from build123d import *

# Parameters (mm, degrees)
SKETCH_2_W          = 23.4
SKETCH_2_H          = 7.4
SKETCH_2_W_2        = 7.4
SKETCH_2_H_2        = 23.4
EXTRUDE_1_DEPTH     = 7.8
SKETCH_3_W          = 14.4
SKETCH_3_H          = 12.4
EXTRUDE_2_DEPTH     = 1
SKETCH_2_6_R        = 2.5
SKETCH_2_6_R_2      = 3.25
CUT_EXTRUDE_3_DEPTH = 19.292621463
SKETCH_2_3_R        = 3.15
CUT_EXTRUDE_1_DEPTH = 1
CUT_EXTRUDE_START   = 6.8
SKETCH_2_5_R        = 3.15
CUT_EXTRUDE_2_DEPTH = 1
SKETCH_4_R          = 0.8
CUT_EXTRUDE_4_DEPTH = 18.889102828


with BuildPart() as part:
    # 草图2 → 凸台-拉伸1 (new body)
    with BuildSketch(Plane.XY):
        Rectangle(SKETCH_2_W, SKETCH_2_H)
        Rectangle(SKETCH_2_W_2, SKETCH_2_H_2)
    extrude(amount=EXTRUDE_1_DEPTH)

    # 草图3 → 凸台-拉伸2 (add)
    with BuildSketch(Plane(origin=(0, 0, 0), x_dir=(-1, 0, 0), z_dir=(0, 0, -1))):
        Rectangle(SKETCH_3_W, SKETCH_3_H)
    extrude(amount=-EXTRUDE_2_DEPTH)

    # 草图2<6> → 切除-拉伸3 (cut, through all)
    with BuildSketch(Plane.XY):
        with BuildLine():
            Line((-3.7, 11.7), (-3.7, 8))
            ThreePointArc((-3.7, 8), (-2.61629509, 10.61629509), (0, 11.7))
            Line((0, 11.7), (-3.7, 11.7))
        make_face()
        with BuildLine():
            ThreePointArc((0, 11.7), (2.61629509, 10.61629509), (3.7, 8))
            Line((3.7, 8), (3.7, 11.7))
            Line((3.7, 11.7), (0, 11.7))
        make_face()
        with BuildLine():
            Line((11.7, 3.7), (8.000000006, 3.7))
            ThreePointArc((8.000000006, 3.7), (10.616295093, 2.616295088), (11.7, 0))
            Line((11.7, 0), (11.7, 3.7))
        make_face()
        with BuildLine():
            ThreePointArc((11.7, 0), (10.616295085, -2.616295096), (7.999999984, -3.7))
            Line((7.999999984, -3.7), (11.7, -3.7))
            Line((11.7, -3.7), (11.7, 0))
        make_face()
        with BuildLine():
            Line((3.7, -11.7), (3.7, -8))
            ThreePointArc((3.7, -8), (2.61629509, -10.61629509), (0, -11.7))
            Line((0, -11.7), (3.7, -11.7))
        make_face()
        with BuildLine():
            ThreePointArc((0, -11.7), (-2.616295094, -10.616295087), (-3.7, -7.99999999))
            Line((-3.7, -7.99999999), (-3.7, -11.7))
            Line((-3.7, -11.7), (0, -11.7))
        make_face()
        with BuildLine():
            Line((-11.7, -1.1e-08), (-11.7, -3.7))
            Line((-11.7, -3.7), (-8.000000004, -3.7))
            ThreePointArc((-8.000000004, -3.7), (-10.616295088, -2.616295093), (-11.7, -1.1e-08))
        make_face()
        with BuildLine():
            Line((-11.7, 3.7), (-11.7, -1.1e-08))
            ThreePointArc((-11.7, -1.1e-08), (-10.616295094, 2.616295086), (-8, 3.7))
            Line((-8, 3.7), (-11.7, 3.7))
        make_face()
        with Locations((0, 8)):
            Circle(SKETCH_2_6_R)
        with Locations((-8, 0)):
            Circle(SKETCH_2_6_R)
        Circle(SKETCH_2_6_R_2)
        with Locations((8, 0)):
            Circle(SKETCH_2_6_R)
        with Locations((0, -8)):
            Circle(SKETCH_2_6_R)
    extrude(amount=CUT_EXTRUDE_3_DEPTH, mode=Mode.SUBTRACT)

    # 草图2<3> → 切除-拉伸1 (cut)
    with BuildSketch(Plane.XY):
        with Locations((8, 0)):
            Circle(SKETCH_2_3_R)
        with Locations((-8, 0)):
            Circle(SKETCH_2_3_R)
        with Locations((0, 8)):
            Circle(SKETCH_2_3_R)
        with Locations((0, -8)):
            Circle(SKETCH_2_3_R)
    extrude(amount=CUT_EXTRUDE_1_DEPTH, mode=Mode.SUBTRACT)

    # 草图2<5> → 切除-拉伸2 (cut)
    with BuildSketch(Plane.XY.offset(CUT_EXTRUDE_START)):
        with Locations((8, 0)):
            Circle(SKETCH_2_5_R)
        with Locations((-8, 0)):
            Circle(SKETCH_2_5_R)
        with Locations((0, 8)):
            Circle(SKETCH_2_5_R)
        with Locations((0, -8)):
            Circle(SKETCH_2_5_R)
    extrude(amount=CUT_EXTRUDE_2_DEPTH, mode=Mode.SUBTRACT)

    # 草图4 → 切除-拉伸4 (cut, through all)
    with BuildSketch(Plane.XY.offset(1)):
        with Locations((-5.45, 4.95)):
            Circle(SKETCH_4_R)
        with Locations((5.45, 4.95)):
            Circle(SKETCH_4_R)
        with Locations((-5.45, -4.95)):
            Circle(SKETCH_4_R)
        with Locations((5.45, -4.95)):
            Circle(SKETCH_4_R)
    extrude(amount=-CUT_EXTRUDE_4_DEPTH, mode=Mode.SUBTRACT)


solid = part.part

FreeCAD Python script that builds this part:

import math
import FreeCAD as App
import Part
import Sketcher
from FreeCAD import Vector


def add_polygon(sketch, points):
    """Adds a closed chain of lines whose ends are joined by coincident constraints."""
    first, n = sketch.GeometryCount, len(points)
    for a, b in zip(points, points[1:] + points[:1]):
        sketch.addGeometry(Part.LineSegment(App.Vector(*a, 0), App.Vector(*b, 0)), False)
    for i in range(n):
        sketch.addConstraint(Sketcher.Constraint("Coincident", first + i, 2, first + (i + 1) % n, 1))

doc = App.newDocument("Part")
body = doc.addObject("PartDesign::Body", "Body")

sketch1 = doc.addObject("Sketcher::SketchObject", "Sketch")
body.addObject(sketch1)
sketch1.AttachmentSupport = (doc.XY_Plane, [""])
sketch1.MapMode = "FlatFace"
add_polygon(sketch1, [(-12, 4), (-12, -4), (-4, -4), (-4, -12), (4, -12), (4, -4), (12, -4), (12, 4), (4, 4), (4, 12), (-4, 12), (-4, 4)])
sketch1.addConstraint(Sketcher.Constraint("Vertical", 0))
sketch1.addConstraint(Sketcher.Constraint("Horizontal", 1))
sketch1.addConstraint(Sketcher.Constraint("Vertical", 2))
sketch1.addConstraint(Sketcher.Constraint("Horizontal", 3))
sketch1.addConstraint(Sketcher.Constraint("Vertical", 4))
sketch1.addConstraint(Sketcher.Constraint("Horizontal", 5))
sketch1.addConstraint(Sketcher.Constraint("Vertical", 6))
sketch1.addConstraint(Sketcher.Constraint("Horizontal", 7))
sketch1.addConstraint(Sketcher.Constraint("Vertical", 8))
sketch1.addConstraint(Sketcher.Constraint("Horizontal", 9))
sketch1.addConstraint(Sketcher.Constraint("Vertical", 10))
sketch1.addConstraint(Sketcher.Constraint("Horizontal", 11))
sketch1.addConstraint(Sketcher.Constraint("Symmetric", 0, 2, 6, 2, -1, 1))
sketch1.addConstraint(Sketcher.Constraint("Symmetric", 2, 2, 8, 2, -1, 1))
sketch1.addConstraint(Sketcher.Constraint("Symmetric", 4, 2, 10, 2, -1, 1))
sketch1.addConstraint(Sketcher.Constraint("Symmetric", 1, 2, 4, 2, -2))
sketch1.addConstraint(Sketcher.Constraint("Equal", 9, 0))
sketch1.addConstraint(Sketcher.Constraint("Equal", 11, 2))
sketch1.addConstraint(Sketcher.Constraint("DistanceX", 1, 1, 1, 2, 8.0))
sketch1.addConstraint(Sketcher.Constraint("DistanceX", 3, 1, 3, 2, 7.4))
pad1 = doc.addObject("PartDesign::Pad", "Pad")
body.addObject(pad1)
pad1.Profile = sketch1
pad1.Length = 7.8

sketch2 = doc.addObject("Sketcher::SketchObject", "Sketch001")
body.addObject(sketch2)
sketch2.AttachmentSupport = (doc.XY_Plane, [""])
sketch2.MapMode = "FlatFace"
add_polygon(sketch2, [(7, 6), (7, -6), (-7, -6), (-7, 6)])
sketch2.addConstraint(Sketcher.Constraint("Vertical", 0))
sketch2.addConstraint(Sketcher.Constraint("Horizontal", 1))
sketch2.addConstraint(Sketcher.Constraint("Vertical", 2))
sketch2.addConstraint(Sketcher.Constraint("Horizontal", 3))
sketch2.addConstraint(Sketcher.Constraint("Symmetric", 0, 2, 2, 2, -1, 1))
sketch2.addConstraint(Sketcher.Constraint("DistanceX", 1, 2, 1, 1, 14.4))
sketch2.addConstraint(Sketcher.Constraint("DistanceY", 0, 2, 0, 1, 12.4))
pad2 = doc.addObject("PartDesign::Pad", "Pad001")
body.addObject(pad2)
pad2.Profile = sketch2
pad2.Length = 1

sketch3 = doc.addObject("Sketcher::SketchObject", "Sketch002")
body.addObject(sketch3)
sketch3.AttachmentSupport = (doc.XY_Plane, [""])
sketch3.MapMode = "FlatFace"
sketch3.addGeometry(Part.LineSegment(Vector(-3.7, 11.7, 0), Vector(-3.7, 8, 0)), False)
sketch3.addGeometry(Part.ArcOfCircle(Part.Circle(Vector(0, 8, 0), Vector(0, 0, 1), 3.7), math.radians(90), math.radians(180)), False)
sketch3.addGeometry(Part.LineSegment(Vector(0, 11.7, 0), Vector(-3.7, 11.7, 0)), False)
sketch3.addGeometry(Part.ArcOfCircle(Part.Circle(Vector(0, 8, 0), Vector(0, 0, 1), 3.7), math.radians(0), math.radians(90)), False)
sketch3.addGeometry(Part.LineSegment(Vector(3.7, 8, 0), Vector(3.7, 11.7, 0)), False)
sketch3.addGeometry(Part.LineSegment(Vector(3.7, 11.7, 0), Vector(0, 11.7, 0)), False)
sketch3.addGeometry(Part.LineSegment(Vector(11.7, 3.7, 0), Vector(8, 3.7, 0)), False)
sketch3.addGeometry(Part.ArcOfCircle(Part.Circle(Vector(8, 0, 0), Vector(0, 0, 1), 3.7), math.radians(0), math.radians(90)), False)
sketch3.addGeometry(Part.LineSegment(Vector(11.7, 0, 0), Vector(11.7, 3.7, 0)), False)
sketch3.addGeometry(Part.ArcOfCircle(Part.Circle(Vector(8, 0, 0), Vector(0, 0, 1), 3.7), math.radians(-90), math.radians(0)), False)
sketch3.addGeometry(Part.LineSegment(Vector(8, -3.7, 0), Vector(11.7, -3.7, 0)), False)
sketch3.addGeometry(Part.LineSegment(Vector(11.7, -3.7, 0), Vector(11.7, 0, 0)), False)
sketch3.addGeometry(Part.LineSegment(Vector(3.7, -11.7, 0), Vector(3.7, -8, 0)), False)
sketch3.addGeometry(Part.ArcOfCircle(Part.Circle(Vector(0, -8, 0), Vector(0, 0, 1), 3.7), math.radians(-90), math.radians(0)), False)
sketch3.addGeometry(Part.LineSegment(Vector(0, -11.7, 0), Vector(3.7, -11.7, 0)), False)
sketch3.addGeometry(Part.ArcOfCircle(Part.Circle(Vector(0, -8, 0), Vector(0, 0, 1), 3.7), math.radians(180), math.radians(270)), False)
sketch3.addGeometry(Part.LineSegment(Vector(-3.7, -8, 0), Vector(-3.7, -11.7, 0)), False)
sketch3.addGeometry(Part.LineSegment(Vector(-3.7, -11.7, 0), Vector(0, -11.7, 0)), False)
sketch3.addGeometry(Part.LineSegment(Vector(-11.7, 0, 0), Vector(-11.7, -3.7, 0)), False)
sketch3.addGeometry(Part.LineSegment(Vector(-11.7, -3.7, 0), Vector(-8, -3.7, 0)), False)
sketch3.addGeometry(Part.ArcOfCircle(Part.Circle(Vector(-8, 0, 0), Vector(0, 0, 1), 3.7), math.radians(-180), math.radians(-90)), False)
sketch3.addGeometry(Part.LineSegment(Vector(-11.7, 3.7, 0), Vector(-11.7, 0, 0)), False)
sketch3.addGeometry(Part.ArcOfCircle(Part.Circle(Vector(-8, 0, 0), Vector(0, 0, 1), 3.7), math.radians(90), math.radians(180)), False)
sketch3.addGeometry(Part.LineSegment(Vector(-8, 3.7, 0), Vector(-11.7, 3.7, 0)), False)
sketch3.addGeometry(Part.Circle(Vector(0, 8, 0), Vector(0, 0, 1), 2.5), False)
sketch3.addGeometry(Part.Circle(Vector(-8, 0, 0), Vector(0, 0, 1), 2.5), False)
sketch3.addGeometry(Part.Circle(Vector(0, 0, 0), Vector(0, 0, 1), 3.2), False)
sketch3.addGeometry(Part.Circle(Vector(8, 0, 0), Vector(0, 0, 1), 2.5), False)
sketch3.addGeometry(Part.Circle(Vector(0, -8, 0), Vector(0, 0, 1), 2.5), False)
sketch3.addConstraint(Sketcher.Constraint("Tangent", 0, 2, 1, 2))
sketch3.addConstraint(Sketcher.Constraint("Tangent", 1, 1, 2, 1))
sketch3.addConstraint(Sketcher.Constraint("Coincident", 2, 2, 0, 1))
sketch3.addConstraint(Sketcher.Constraint("Tangent", 3, 1, 4, 1))
sketch3.addConstraint(Sketcher.Constraint("Coincident", 4, 2, 5, 1))
sketch3.addConstraint(Sketcher.Constraint("Tangent", 5, 2, 3, 2))
sketch3.addConstraint(Sketcher.Constraint("Tangent", 6, 2, 7, 2))
sketch3.addConstraint(Sketcher.Constraint("Tangent", 7, 1, 8, 1))
sketch3.addConstraint(Sketcher.Constraint("Coincident", 8, 2, 6, 1))
sketch3.addConstraint(Sketcher.Constraint("Tangent", 9, 1, 10, 1))
sketch3.addConstraint(Sketcher.Constraint("Coincident", 10, 2, 11, 1))
sketch3.addConstraint(Sketcher.Constraint("Tangent", 11, 2, 9, 2))
sketch3.addConstraint(Sketcher.Constraint("Tangent", 12, 2, 13, 2))
sketch3.addConstraint(Sketcher.Constraint("Tangent", 13, 1, 14, 1))
sketch3.addConstraint(Sketcher.Constraint("Coincident", 14, 2, 12, 1))
sketch3.addConstraint(Sketcher.Constraint("Tangent", 15, 1, 16, 1))
sketch3.addConstraint(Sketcher.Constraint("Coincident", 16, 2, 17, 1))
sketch3.addConstraint(Sketcher.Constraint("Tangent", 17, 2, 15, 2))
sketch3.addConstraint(Sketcher.Constraint("Coincident", 18, 2, 19, 1))
sketch3.addConstraint(Sketcher.Constraint("Tangent", 19, 2, 20, 2))
sketch3.addConstraint(Sketcher.Constraint("Tangent", 20, 1, 18, 1))
sketch3.addConstraint(Sketcher.Constraint("Tangent", 21, 2, 22, 2))
sketch3.addConstraint(Sketcher.Constraint("Tangent", 22, 1, 23, 1))
sketch3.addConstraint(Sketcher.Constraint("Coincident", 23, 2, 21, 1))
sketch3.addConstraint(Sketcher.Constraint("Vertical", 0))
sketch3.addConstraint(Sketcher.Constraint("Horizontal", 2))
sketch3.addConstraint(Sketcher.Constraint("Vertical", 4))
sketch3.addConstraint(Sketcher.Constraint("Horizontal", 5))
sketch3.addConstraint(Sketcher.Constraint("Horizontal", 6))
sketch3.addConstraint(Sketcher.Constraint("Vertical", 8))
sketch3.addConstraint(Sketcher.Constraint("Horizontal", 10))
sketch3.addConstraint(Sketcher.Constraint("Vertical", 11))
sketch3.addConstraint(Sketcher.Constraint("Vertical", 12))
sketch3.addConstraint(Sketcher.Constraint("Horizontal", 14))
sketch3.addConstraint(Sketcher.Constraint("Vertical", 16))
sketch3.addConstraint(Sketcher.Constraint("Horizontal", 17))
sketch3.addConstraint(Sketcher.Constraint("Vertical", 18))
sketch3.addConstraint(Sketcher.Constraint("Horizontal", 19))
sketch3.addConstraint(Sketcher.Constraint("Vertical", 21))
sketch3.addConstraint(Sketcher.Constraint("Horizontal", 23))
sketch3.addConstraint(Sketcher.Constraint("Coincident", 26, 3, -1, 1))
sketch3.addConstraint(Sketcher.Constraint("Coincident", 3, 3, 1, 3))
sketch3.addConstraint(Sketcher.Constraint("Coincident", 9, 3, 7, 3))
sketch3.addConstraint(Sketcher.Constraint("Coincident", 15, 3, 13, 3))
sketch3.addConstraint(Sketcher.Constraint("Coincident", 22, 3, 20, 3))
sketch3.addConstraint(Sketcher.Constraint("Coincident", 24, 3, 1, 3))
sketch3.addConstraint(Sketcher.Constraint("Coincident", 25, 3, 20, 3))
sketch3.addConstraint(Sketcher.Constraint("Coincident", 27, 3, 7, 3))
sketch3.addConstraint(Sketcher.Constraint("Coincident", 28, 3, 13, 3))
sketch3.addConstraint(Sketcher.Constraint("Equal", 1, 3))
sketch3.addConstraint(Sketcher.Constraint("Equal", 3, 7))
sketch3.addConstraint(Sketcher.Constraint("Equal", 7, 9))
sketch3.addConstraint(Sketcher.Constraint("Equal", 9, 13))
sketch3.addConstraint(Sketcher.Constraint("Equal", 13, 15))
sketch3.addConstraint(Sketcher.Constraint("Equal", 15, 20))
sketch3.addConstraint(Sketcher.Constraint("Equal", 20, 22))
sketch3.addConstraint(Sketcher.Constraint("Equal", 24, 25))
sketch3.addConstraint(Sketcher.Constraint("Equal", 25, 27))
sketch3.addConstraint(Sketcher.Constraint("Equal", 27, 28))
sketch3.addConstraint(Sketcher.Constraint("Symmetric", 1, 3, 13, 3, -1, 1))
sketch3.addConstraint(Sketcher.Constraint("Symmetric", 7, 3, 20, 3, -1, 1))
sketch3.addConstraint(Sketcher.Constraint("PointOnObject", 1, 3, -2))
sketch3.addConstraint(Sketcher.Constraint("PointOnObject", 7, 3, -1))
sketch3.addConstraint(Sketcher.Constraint("Diameter", 24, 5.0))
sketch3.addConstraint(Sketcher.Constraint("Diameter", 26, 6.5))
sketch3.addConstraint(Sketcher.Constraint("Radius", 1, 3.7))
sketch3.addConstraint(Sketcher.Constraint("DistanceY", -1, 1, 1, 3, 8.0))
sketch3.addConstraint(Sketcher.Constraint("DistanceX", -1, 1, 7, 3, 8.0))
pocket1 = doc.addObject("PartDesign::Pocket", "Pocket")
body.addObject(pocket1)
pocket1.Profile = sketch3
pocket1.Type = "ThroughAll"
pocket1.Reversed = True

sketch4 = doc.addObject("Sketcher::SketchObject", "Sketch003")
body.addObject(sketch4)
sketch4.AttachmentSupport = (doc.XY_Plane, [""])
sketch4.MapMode = "FlatFace"
sketch4.addGeometry(Part.Circle(Vector(8, 0, 0), Vector(0, 0, 1), 3.1), False)
sketch4.addGeometry(Part.Circle(Vector(-8, 0, 0), Vector(0, 0, 1), 3.1), False)
sketch4.addGeometry(Part.Circle(Vector(0, 8, 0), Vector(0, 0, 1), 3.1), False)
sketch4.addGeometry(Part.Circle(Vector(0, -8, 0), Vector(0, 0, 1), 3.1), False)
sketch4.addConstraint(Sketcher.Constraint("Equal", 0, 1))
sketch4.addConstraint(Sketcher.Constraint("Equal", 1, 2))
sketch4.addConstraint(Sketcher.Constraint("Equal", 2, 3))
sketch4.addConstraint(Sketcher.Constraint("Symmetric", 0, 3, 1, 3, -1, 1))
sketch4.addConstraint(Sketcher.Constraint("Symmetric", 2, 3, 3, 3, -1, 1))
sketch4.addConstraint(Sketcher.Constraint("PointOnObject", 0, 3, -1))
sketch4.addConstraint(Sketcher.Constraint("PointOnObject", 2, 3, -2))
sketch4.addConstraint(Sketcher.Constraint("Diameter", 0, 6.3))
sketch4.addConstraint(Sketcher.Constraint("DistanceX", -1, 1, 0, 3, 8.0))
sketch4.addConstraint(Sketcher.Constraint("DistanceY", -1, 1, 2, 3, 8.0))
pocket2 = doc.addObject("PartDesign::Pocket", "Pocket001")
body.addObject(pocket2)
pocket2.Profile = sketch4
pocket2.Length = 1
pocket2.Reversed = True

sketch5 = doc.addObject("Sketcher::SketchObject", "Sketch004")
body.addObject(sketch5)
sketch5.AttachmentSupport = (doc.XY_Plane, [""])
sketch5.MapMode = "FlatFace"
sketch5.AttachmentOffset = App.Placement(Vector(0, 0, 6.8), App.Rotation())
sketch5.addGeometry(Part.Circle(Vector(8, 0, 0), Vector(0, 0, 1), 3.1), False)
sketch5.addGeometry(Part.Circle(Vector(-8, 0, 0), Vector(0, 0, 1), 3.1), False)
sketch5.addGeometry(Part.Circle(Vector(0, 8, 0), Vector(0, 0, 1), 3.1), False)
sketch5.addGeometry(Part.Circle(Vector(0, -8, 0), Vector(0, 0, 1), 3.1), False)
sketch5.addConstraint(Sketcher.Constraint("Equal", 0, 1))
sketch5.addConstraint(Sketcher.Constraint("Equal", 1, 2))
sketch5.addConstraint(Sketcher.Constraint("Equal", 2, 3))
sketch5.addConstraint(Sketcher.Constraint("Symmetric", 0, 3, 1, 3, -1, 1))
sketch5.addConstraint(Sketcher.Constraint("Symmetric", 2, 3, 3, 3, -1, 1))
sketch5.addConstraint(Sketcher.Constraint("PointOnObject", 0, 3, -1))
sketch5.addConstraint(Sketcher.Constraint("PointOnObject", 2, 3, -2))
sketch5.addConstraint(Sketcher.Constraint("Diameter", 0, 6.3))
sketch5.addConstraint(Sketcher.Constraint("DistanceX", -1, 1, 0, 3, 8.0))
sketch5.addConstraint(Sketcher.Constraint("DistanceY", -1, 1, 2, 3, 8.0))
pocket3 = doc.addObject("PartDesign::Pocket", "Pocket002")
body.addObject(pocket3)
pocket3.Profile = sketch5
pocket3.Length = 1
pocket3.Reversed = True

sketch6 = doc.addObject("Sketcher::SketchObject", "Sketch005")
body.addObject(sketch6)
sketch6.AttachmentSupport = (doc.XY_Plane, [""])
sketch6.MapMode = "FlatFace"
sketch6.AttachmentOffset = App.Placement(Vector(0, 0, 1), App.Rotation())
sketch6.addGeometry(Part.Circle(Vector(-5.5, 5, 0), Vector(0, 0, 1), 0.8), False)
sketch6.addGeometry(Part.Circle(Vector(5.5, 5, 0), Vector(0, 0, 1), 0.8), False)
sketch6.addGeometry(Part.Circle(Vector(-5.5, -5, 0), Vector(0, 0, 1), 0.8), False)
sketch6.addGeometry(Part.Circle(Vector(5.5, -5, 0), Vector(0, 0, 1), 0.8), False)
sketch6.addConstraint(Sketcher.Constraint("Equal", 0, 1))
sketch6.addConstraint(Sketcher.Constraint("Equal", 1, 2))
sketch6.addConstraint(Sketcher.Constraint("Equal", 2, 3))
sketch6.addConstraint(Sketcher.Constraint("Symmetric", 1, 3, 2, 3, -1, 1))
sketch6.addConstraint(Sketcher.Constraint("Symmetric", 0, 3, 3, 3, -1, 1))
sketch6.addConstraint(Sketcher.Constraint("Symmetric", 0, 3, 1, 3, -2))
sketch6.addConstraint(Sketcher.Constraint("Diameter", 0, 1.6))
sketch6.addConstraint(Sketcher.Constraint("DistanceX", 0, 3, 1, 3, 10.9))
sketch6.addConstraint(Sketcher.Constraint("DistanceY", 2, 3, 0, 3, 9.9))
pocket4 = doc.addObject("PartDesign::Pocket", "Pocket003")
body.addObject(pocket4)
pocket4.Profile = sketch6
pocket4.Type = "ThroughAll"

doc.recompute()
